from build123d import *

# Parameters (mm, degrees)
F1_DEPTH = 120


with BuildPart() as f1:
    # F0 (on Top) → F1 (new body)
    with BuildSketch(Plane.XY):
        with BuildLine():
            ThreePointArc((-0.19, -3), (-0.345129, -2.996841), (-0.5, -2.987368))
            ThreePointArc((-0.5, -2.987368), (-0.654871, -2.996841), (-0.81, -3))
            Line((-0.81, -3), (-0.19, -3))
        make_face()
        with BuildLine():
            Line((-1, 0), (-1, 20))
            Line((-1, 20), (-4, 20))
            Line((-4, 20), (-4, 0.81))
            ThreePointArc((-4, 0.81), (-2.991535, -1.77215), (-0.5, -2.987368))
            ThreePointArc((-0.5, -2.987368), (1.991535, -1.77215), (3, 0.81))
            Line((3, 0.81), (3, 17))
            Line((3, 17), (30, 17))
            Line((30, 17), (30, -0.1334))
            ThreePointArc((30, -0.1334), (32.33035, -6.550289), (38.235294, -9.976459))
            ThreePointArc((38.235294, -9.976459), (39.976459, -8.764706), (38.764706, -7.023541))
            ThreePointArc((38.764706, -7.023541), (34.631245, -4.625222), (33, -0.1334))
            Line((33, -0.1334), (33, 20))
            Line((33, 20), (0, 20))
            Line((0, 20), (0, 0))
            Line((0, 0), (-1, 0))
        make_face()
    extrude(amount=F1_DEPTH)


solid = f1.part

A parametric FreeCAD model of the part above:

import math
import FreeCAD as App
import Part
import Sketcher
Q = App.Units.Quantity

doc = App.newDocument("Part")
body = doc.addObject("PartDesign::Body", "Body")
body.AllowCompound = True

# Sketch on XY plane
sketch1 = body.newObject("Sketcher::SketchObject", "Sketch")
sketch1.AttachmentSupport = (doc.getObject("XY_Plane"), [""])
sketch1.MapMode = "FlatFace"
sketch1.addGeometry([
    Part.ArcOfCircle(Part.Circle(App.Vector(-0.19, 0.81, 0), App.Vector(0, 0, 1), 3.81), math.radians(-94.67), math.radians(-90)),  # 0
    Part.ArcOfCircle(Part.Circle(App.Vector(-0.81, 0.81, 0), App.Vector(0, 0, 1), 3.81), math.radians(-90), math.radians(-85.33)),  # 1
    Part.LineSegment(App.Vector(-0.81, -3, 0), App.Vector(-0.19, -3, 0)),  # 2
    Part.LineSegment(App.Vector(-1, 0, 0), App.Vector(-1, 20, 0)),  # 3
    Part.LineSegment(App.Vector(-1, 20, 0), App.Vector(-4, 20, 0)),  # 4
    Part.LineSegment(App.Vector(-4, 20, 0), App.Vector(-4, 0.81, 0)),  # 5
    Part.ArcOfCircle(Part.Circle(App.Vector(-0.19, 0.81, 0), App.Vector(0, 0, 1), 3.81), math.radians(-180), math.radians(-95)),  # 6
    Part.ArcOfCircle(Part.Circle(App.Vector(-0.81, 0.81, 0), App.Vector(0, 0, 1), 3.81), math.radians(-85), math.radians(0)),  # 7
    Part.LineSegment(App.Vector(3, 0.81, 0), App.Vector(3, 17, 0)),  # 8
    Part.LineSegment(App.Vector(3, 17, 0), App.Vector(30, 17, 0)),  # 9
    Part.LineSegment(App.Vector(30, 17, 0), App.Vector(30, -0.13, 0)),  # 10
    Part.ArcOfCircle(Part.Circle(App.Vector(40, -0.13, 0), App.Vector(0, 0, 1), 10), math.radians(-180), math.radians(-100)),  # 11
    Part.ArcOfCircle(Part.Circle(App.Vector(38.5, -8.5, 0), App.Vector(0, 0, 1), 1.5), math.radians(-100), math.radians(80)),  # 12
    Part.ArcOfCircle(Part.Circle(App.Vector(40, -0.13, 0), App.Vector(0, 0, 1), 7), math.radians(-180), math.radians(-100)),  # 13
    Part.LineSegment(App.Vector(33, -0.13, 0), App.Vector(33, 20, 0)),  # 14
    Part.LineSegment(App.Vector(33, 20, 0), App.Vector(0, 20, 0)),  # 15
    Part.LineSegment(App.Vector(0, 20, 0), App.Vector(0, 0, 0)),  # 16
    Part.LineSegment(App.Vector(0, 0, 0), App.Vector(-1, 0, 0)),  # 17
], False)
sketch1.addConstraint([
    Sketcher.Constraint("Coincident", 0, 1, 1, 2),
    Sketcher.Constraint("Coincident", 1, 1, 2, 1),
    Sketcher.Constraint("Coincident", 2, 2, 0, 2),
    Sketcher.Constraint("Coincident", 3, 2, 4, 1),
    Sketcher.Constraint("Coincident", 4, 2, 5, 1),
    Sketcher.Constraint("Tangent", 5, 2, 6, 1),
    Sketcher.Constraint("Coincident", 6, 2, 7, 1),
    Sketcher.Constraint("Tangent", 7, 2, 8, 1),
    Sketcher.Constraint("Coincident", 8, 2, 9, 1),
    Sketcher.Constraint("Coincident", 9, 2, 10, 1),
    Sketcher.Constraint("Tangent", 10, 2, 11, 1),
    Sketcher.Constraint("Tangent", 11, 2, 12, 1),
    Sketcher.Constraint("Tangent", 12, 2, 13, 2),
    Sketcher.Constraint("Tangent", 13, 1, 14, 1),
    Sketcher.Constraint("Coincident", 14, 2, 15, 1),
    Sketcher.Constraint("Coincident", 15, 2, 16, 1),
    Sketcher.Constraint("Coincident", 16, 2, 17, 1),
    Sketcher.Constraint("Coincident", 17, 2, 3, 1),
    Sketcher.Constraint("Horizontal", 2),
    Sketcher.Constraint("Vertical", 3),
    Sketcher.Constraint("Horizontal", 4),
    Sketcher.Constraint("Vertical", 5),
    Sketcher.Constraint("Vertical", 8),
    Sketcher.Constraint("Horizontal", 9),
    Sketcher.Constraint("Vertical", 10),
    Sketcher.Constraint("Vertical", 14),
    Sketcher.Constraint("Horizontal", 15),
    Sketcher.Constraint("Vertical", 16),
    Sketcher.Constraint("Horizontal", 17),
    Sketcher.Constraint("Coincident", 16, 2, -1, 1),
    Sketcher.Constraint("Coincident", 13, 3, 11, 3),
    Sketcher.Constraint("Coincident", 6, 2, 0, 1),
    Sketcher.Constraint("Equal", 0, 1),
    Sketcher.Constraint("Equal", 6, 7),
    Sketcher.Constraint("Horizontal", 6, 3, 7, 3),
    Sketcher.Constraint("Horizontal", 4, 2, 14, 2),
    Sketcher.Constraint("Radius", 11, Q("10 mm")),
    Sketcher.Constraint("Radius", 13, Q("7 mm")),
    Sketcher.Constraint("DistanceX", 4, 2, 4, 1, Q("3 mm")),
    Sketcher.Constraint("DistanceX", 9, 1, 9, 2, Q("27 mm")),
    Sketcher.Constraint("DistanceX", 15, 2, 15, 1, Q("33 mm")),
    Sketcher.Constraint("DistanceX", 17, 2, 17, 1, Q("1 mm")),
    Sketcher.Constraint("DistanceY", 3, 1, 3, 2, Q("20 mm")),
    Sketcher.Constraint("DistanceY", 1, 1, -1, 1, Q("3 mm")),
    Sketcher.Constraint("DistanceY", -1, 1, 8, 2, Q("17 mm")),
    Sketcher.Constraint("DistanceX", 0, 1, 12, 3, Q("39 mm")),
    Sketcher.Constraint("DistanceX", 2, 1, 2, 2, Q("0.62 mm")),
    Sketcher.Constraint("DistanceY", 5, 2, 5, 1, Q("19.19 mm")),
    Sketcher.Constraint("DistanceY", 12, 3, -1, 1, Q("8.5 mm")),
    Sketcher.Constraint("DistanceX", 1, 1, -1, 1, Q("0.81 mm")),
    Sketcher.Constraint("DistanceX", 6, 3, 11, 3, Q("40.189998 mm")),
    Sketcher.Constraint("Radius", 0, Q("3.809756 mm")),
])
pad1 = body.newObject("PartDesign::Pad", "Pad")
pad1.Profile = sketch1
pad1.Length = 120

doc.recompute()
